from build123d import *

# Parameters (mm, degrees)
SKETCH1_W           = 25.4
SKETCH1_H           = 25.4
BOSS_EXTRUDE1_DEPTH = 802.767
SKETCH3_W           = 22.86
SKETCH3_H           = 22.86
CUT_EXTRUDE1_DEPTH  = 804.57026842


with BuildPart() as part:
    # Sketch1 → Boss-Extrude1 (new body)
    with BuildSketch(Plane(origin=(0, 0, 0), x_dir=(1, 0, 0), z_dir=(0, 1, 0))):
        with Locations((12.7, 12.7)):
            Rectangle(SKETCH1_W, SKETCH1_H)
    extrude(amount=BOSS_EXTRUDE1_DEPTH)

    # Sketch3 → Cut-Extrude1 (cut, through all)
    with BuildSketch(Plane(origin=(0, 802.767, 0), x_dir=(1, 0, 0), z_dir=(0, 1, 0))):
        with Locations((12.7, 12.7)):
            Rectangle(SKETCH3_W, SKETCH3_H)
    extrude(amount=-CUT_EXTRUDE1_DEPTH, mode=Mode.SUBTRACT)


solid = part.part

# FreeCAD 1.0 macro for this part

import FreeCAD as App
import Part
import Sketcher

V = App.Vector
Q = App.Units.Quantity


def add_polygon(sketch, points):
    """Adds a closed chain of lines whose ends are joined by coincident constraints."""
    first, n = sketch.GeometryCount, len(points)
    for a, b in zip(points, points[1:] + points[:1]):
        sketch.addGeometry(Part.LineSegment(App.Vector(*a, 0), App.Vector(*b, 0)), False)
    for i in range(n):
        sketch.addConstraint(Sketcher.Constraint("Coincident", first + i, 2, first + (i + 1) % n, 1))

doc = App.newDocument("Part")
body = doc.addObject("PartDesign::Body", "Body")

sketch1 = body.newObject("Sketcher::SketchObject", "Sketch")
sketch1.AttachmentSupport = (doc.getObject("XZ_Plane"), [""])
sketch1.MapMode = "FlatFace"
add_polygon(sketch1, [(0, -25), (0, 0), (25, 0), (25, -25)])
sketch1.addConstraint([
    Sketcher.Constraint("Vertical", 0),
    Sketcher.Constraint("Horizontal", 1),
    Sketcher.Constraint("Vertical", 2),
    Sketcher.Constraint("Horizontal", 3),
    Sketcher.Constraint("Coincident", 0, 2, -1, 1),
    Sketcher.Constraint("Equal", 3, 0),
    Sketcher.Constraint("DistanceX", 1, 1, 1, 2, Q("1 in")),
])
pad1 = body.newObject("PartDesign::Pad", "Pad")
pad1.Profile = sketch1
pad1.Length = Q("31.605 in")
pad1.Reversed = True

sketch2 = body.newObject("Sketcher::SketchObject", "Sketch001")
sketch2.AttachmentSupport = (doc.getObject("XZ_Plane"), [""])
sketch2.MapMode = "FlatFace"
sketch2.AttachmentOffset = App.Placement(V(0, 0, -31.605 * 25.4), App.Rotation())
add_polygon(sketch2, [(1, -24), (1, -1), (24, -1), (24, -24)])
sketch2.addConstraint([
    Sketcher.Constraint("Vertical", 0),
    Sketcher.Constraint("Horizontal", 1),
    Sketcher.Constraint("Vertical", 2),
    Sketcher.Constraint("Horizontal", 3),
    Sketcher.Constraint("Equal", 3, 0),
    Sketcher.Constraint("DistanceX", 1, 1, 1, 2, Q("0.9 in")),
    Sketcher.Constraint("DistanceX", -1, 1, 0, 2, Q("0.05 in")),
    Sketcher.Constraint("DistanceY", 0, 2, -1, 1, Q("0.05 in")),
])
pocket1 = body.newObject("PartDesign::Pocket", "Pocket")
pocket1.Profile = sketch2
pocket1.Type = "ThroughAll"
pocket1.Reversed = True

doc.recompute()
